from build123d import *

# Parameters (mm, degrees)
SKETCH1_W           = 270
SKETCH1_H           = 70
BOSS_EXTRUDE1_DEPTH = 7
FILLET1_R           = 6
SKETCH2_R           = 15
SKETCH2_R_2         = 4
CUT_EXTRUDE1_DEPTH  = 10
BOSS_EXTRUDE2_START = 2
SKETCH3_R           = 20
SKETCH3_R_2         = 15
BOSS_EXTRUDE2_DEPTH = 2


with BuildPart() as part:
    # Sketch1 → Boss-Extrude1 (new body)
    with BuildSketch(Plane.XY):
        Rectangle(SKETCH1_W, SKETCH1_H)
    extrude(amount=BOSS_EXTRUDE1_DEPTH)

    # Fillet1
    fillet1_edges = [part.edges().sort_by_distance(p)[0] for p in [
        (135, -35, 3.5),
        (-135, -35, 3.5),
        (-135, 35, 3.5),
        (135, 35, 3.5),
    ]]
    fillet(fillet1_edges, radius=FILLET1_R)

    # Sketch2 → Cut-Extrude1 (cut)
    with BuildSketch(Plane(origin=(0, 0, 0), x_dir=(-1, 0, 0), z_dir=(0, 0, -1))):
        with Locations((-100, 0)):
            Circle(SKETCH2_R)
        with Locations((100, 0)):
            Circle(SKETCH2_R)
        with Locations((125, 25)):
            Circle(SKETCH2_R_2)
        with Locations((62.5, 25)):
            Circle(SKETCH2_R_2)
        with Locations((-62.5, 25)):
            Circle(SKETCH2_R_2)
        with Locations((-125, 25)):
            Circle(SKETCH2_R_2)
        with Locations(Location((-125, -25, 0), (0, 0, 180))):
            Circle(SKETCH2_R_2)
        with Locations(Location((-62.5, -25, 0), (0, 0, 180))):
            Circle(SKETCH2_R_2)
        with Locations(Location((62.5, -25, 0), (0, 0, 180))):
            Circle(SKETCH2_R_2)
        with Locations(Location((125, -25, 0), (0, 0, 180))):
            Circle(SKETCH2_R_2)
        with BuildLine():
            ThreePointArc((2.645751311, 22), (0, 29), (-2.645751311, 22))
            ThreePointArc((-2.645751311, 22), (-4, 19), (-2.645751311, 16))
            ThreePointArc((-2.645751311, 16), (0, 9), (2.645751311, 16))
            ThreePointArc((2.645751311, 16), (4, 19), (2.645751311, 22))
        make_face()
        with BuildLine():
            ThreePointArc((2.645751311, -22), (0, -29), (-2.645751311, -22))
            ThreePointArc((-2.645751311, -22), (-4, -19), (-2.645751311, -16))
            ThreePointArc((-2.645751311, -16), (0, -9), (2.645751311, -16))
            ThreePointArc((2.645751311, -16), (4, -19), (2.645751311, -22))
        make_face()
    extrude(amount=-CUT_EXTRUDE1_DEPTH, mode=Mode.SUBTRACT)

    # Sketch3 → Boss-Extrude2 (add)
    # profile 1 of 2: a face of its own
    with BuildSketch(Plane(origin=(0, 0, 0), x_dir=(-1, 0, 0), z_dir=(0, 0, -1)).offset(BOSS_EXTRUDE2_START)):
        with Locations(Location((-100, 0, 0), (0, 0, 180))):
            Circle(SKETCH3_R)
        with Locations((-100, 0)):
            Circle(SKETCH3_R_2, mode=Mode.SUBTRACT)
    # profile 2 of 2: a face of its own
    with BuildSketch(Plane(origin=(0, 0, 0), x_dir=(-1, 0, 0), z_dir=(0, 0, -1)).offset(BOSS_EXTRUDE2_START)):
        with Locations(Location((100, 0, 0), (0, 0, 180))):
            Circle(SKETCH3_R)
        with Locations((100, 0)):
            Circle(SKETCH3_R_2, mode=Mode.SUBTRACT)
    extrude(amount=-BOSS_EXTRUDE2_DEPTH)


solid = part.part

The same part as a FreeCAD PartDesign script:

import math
import FreeCAD as App
import Part
import Sketcher

V = App.Vector
Q = App.Units.Quantity


def edges_at(feature, points):
    """Names of the edges that pass closest to the given points."""
    edges = feature.Shape.Edges
    near = lambda p: min(range(len(edges)), key=lambda i: edges[i].distToShape(Part.Vertex(*p))[0])
    return sorted({f"Edge{near(p) + 1}" for p in points})


def add_polygon(sketch, points):
    """Adds a closed chain of lines whose ends are joined by coincident constraints."""
    first, n = sketch.GeometryCount, len(points)
    for a, b in zip(points, points[1:] + points[:1]):
        sketch.addGeometry(Part.LineSegment(App.Vector(*a, 0), App.Vector(*b, 0)), False)
    for i in range(n):
        sketch.addConstraint(Sketcher.Constraint("Coincident", first + i, 2, first + (i + 1) % n, 1))

doc = App.newDocument("Part")
params = doc.addObject("Spreadsheet::Sheet", "Params")
for row, (alias, value) in enumerate([
    ("sketch1_width", "270 mm"),
    ("sketch1_height", "70 mm"),
    ("pad1_length", "7 mm"),
    ("fillet_radius", "6 mm"),
    ("sketch2_diameter", "30 mm"),
    ("sketch2_diameter2", "8 mm"),
    ("pocket1_length", "10 mm"),
    ("sketch3_diameter", "40 mm"),
    ("sketch3_diameter2", "30 mm"),
    ("pad2_length", "2 mm"),
], start=1):
    params.set(f"A{row}", alias)
    params.set(f"B{row}", "=" + value)
    params.setAlias(f"B{row}", alias)

body = doc.addObject("PartDesign::Body", "Body")

# Sketch on XY plane
sketch1 = body.newObject("Sketcher::SketchObject", "Sketch")
sketch1.AttachmentSupport = (doc.getObject("XY_Plane"), [""])
sketch1.MapMode = "FlatFace"
add_polygon(sketch1, [(-135, 35), (-135, -35), (135, -35), (135, 35)])  # lines 0-3
sketch1.addConstraint([
    Sketcher.Constraint("Vertical", 0),
    Sketcher.Constraint("Horizontal", 1),
    Sketcher.Constraint("Vertical", 2),
    Sketcher.Constraint("Horizontal", 3),
    Sketcher.Constraint("Symmetric", 0, 2, 2, 2, -1, 1),
    Sketcher.Constraint("DistanceX", 1, 1, 1, 2, Q("270 mm")),
    Sketcher.Constraint("DistanceY", 0, 2, 0, 1, Q("70 mm")),
])
sketch1.setExpression("Constraints[9]", "Params.sketch1_width")
sketch1.setExpression("Constraints[10]", "Params.sketch1_height")
pad1 = body.newObject("PartDesign::Pad", "Pad")
pad1.Profile = sketch1
pad1.setExpression("Length", "Params.pad1_length")
doc.recompute()

fillet = body.newObject("PartDesign::Fillet", "Fillet")
fillet.Base = (pad1, edges_at(pad1, [
    (135, -35, 3.5),
    (-135, -35, 3.5),
    (-135, 35, 3.5),
    (135, 35, 3.5),
]))
fillet.setExpression("Radius", "Params.fillet_radius")

# Sketch on XY plane
sketch2 = body.newObject("Sketcher::SketchObject", "Sketch001")
sketch2.AttachmentSupport = (doc.getObject("XY_Plane"), [""])
sketch2.MapMode = "FlatFace"
sketch2.addGeometry([
    Part.Circle(V(100, 0, 0), V(0, 0, 1), 15),  # 0
    Part.Circle(V(-100, 0, 0), V(0, 0, 1), 15),  # 1
    Part.Circle(V(-125, 25, 0), V(0, 0, 1), 4),  # 2
    Part.Circle(V(-62.5, 25, 0), V(0, 0, 1), 4),  # 3
    Part.Circle(V(62.5, 25, 0), V(0, 0, 1), 4),  # 4
    Part.Circle(V(125, 25, 0), V(0, 0, 1), 4),  # 5
    Part.Circle(V(125, -25, 0), V(0, 0, 1), 4),  # 6
    Part.Circle(V(62.5, -25, 0), V(0, 0, 1), 4),  # 7
    Part.Circle(V(-62.5, -25, 0), V(0, 0, 1), 4),  # 8
    Part.Circle(V(-125, -25, 0), V(0, 0, 1), 4),  # 9
    Part.ArcOfCircle(Part.Circle(V(0, 25, 0), V(0, 0, 1), 4), math.radians(-48.590378), math.radians(228.590378)),  # 10
    Part.ArcOfCircle(Part.Circle(V(0, 19, 0), V(0, 0, 1), 4), math.radians(-48.590378), math.radians(48.590378)),  # 11
    Part.ArcOfCircle(Part.Circle(V(0, 13, 0), V(0, 0, 1), 4), math.radians(131.409622), math.radians(408.590378)),  # 12
    Part.ArcOfCircle(Part.Circle(V(0, 19, 0), V(0, 0, 1), 4), math.radians(131.409622), math.radians(228.590378)),  # 13
    Part.ArcOfCircle(Part.Circle(V(0, -25, 0), V(0, 0, 1), 4), math.radians(131.409622), math.radians(408.590378)),  # 14
    Part.ArcOfCircle(Part.Circle(V(0, -19, 0), V(0, 0, 1), 4), math.radians(131.409622), math.radians(228.590378)),  # 15
    Part.ArcOfCircle(Part.Circle(V(0, -13, 0), V(0, 0, 1), 4), math.radians(-48.590378), math.radians(228.590378)),  # 16
    Part.ArcOfCircle(Part.Circle(V(0, -19, 0), V(0, 0, 1), 4), math.radians(-48.590378), math.radians(48.590378)),  # 17
], False)
sketch2.addConstraint([
    Sketcher.Constraint("Coincident", 10, 1, 11, 2),
    Sketcher.Constraint("Coincident", 11, 1, 12, 2),
    Sketcher.Constraint("Coincident", 12, 1, 13, 2),
    Sketcher.Constraint("Coincident", 13, 1, 10, 2),
    Sketcher.Constraint("Coincident", 14, 1, 15, 2),
    Sketcher.Constraint("Coincident", 15, 1, 16, 2),
    Sketcher.Constraint("Coincident", 16, 1, 17, 2),
    Sketcher.Constraint("Coincident", 17, 1, 14, 2),
    Sketcher.Constraint("Coincident", 13, 3, 11, 3),
    Sketcher.Constraint("Coincident", 17, 3, 15, 3),
    Sketcher.Constraint("Equal", 0, 1),
    Sketcher.Constraint("Equal", 2, 3),
    Sketcher.Constraint("Equal", 3, 4),
    Sketcher.Constraint("Equal", 4, 5),
    Sketcher.Constraint("Equal", 5, 6),
    Sketcher.Constraint("Equal", 6, 7),
    Sketcher.Constraint("Equal", 7, 8),
    Sketcher.Constraint("Equal", 8, 9),
    Sketcher.Constraint("Equal", 9, 10),
    Sketcher.Constraint("Equal", 10, 11),
    Sketcher.Constraint("Equal", 11, 12),
    Sketcher.Constraint("Equal", 12, 13),
    Sketcher.Constraint("Equal", 13, 14),
    Sketcher.Constraint("Equal", 14, 15),
    Sketcher.Constraint("Equal", 15, 16),
    Sketcher.Constraint("Equal", 16, 17),
    Sketcher.Constraint("Symmetric", 0, 3, 1, 3, -1, 1),
    Sketcher.Constraint("Symmetric", 2, 3, 6, 3, -1, 1),
    Sketcher.Constraint("Symmetric", 3, 3, 7, 3, -1, 1),
    Sketcher.Constraint("Symmetric", 4, 3, 8, 3, -1, 1),
    Sketcher.Constraint("Symmetric", 5, 3, 9, 3, -1, 1),
    Sketcher.Constraint("Symmetric", 10, 3, 14, 3, -1, 1),
    Sketcher.Constraint("Symmetric", 11, 3, 15, 3, -1, 1),
    Sketcher.Constraint("Symmetric", 12, 3, 16, 3, -1, 1),
    Sketcher.Constraint("Symmetric", 3, 3, 4, 3, -2),
    Sketcher.Constraint("Symmetric", 2, 3, 5, 3, -2),
    Sketcher.Constraint("Symmetric", 11, 1, 12, 1, -2),
    Sketcher.Constraint("PointOnObject", 0, 3, -1),
    Sketcher.Constraint("PointOnObject", 10, 3, -2),
    Sketcher.Constraint("Horizontal", 2, 3, 3, 3),
    Sketcher.Constraint("Horizontal", 5, 3, 10, 3),
    Sketcher.Constraint("Vertical", 10, 1, 11, 1),
    Sketcher.Constraint("Diameter", 0, Q("30 mm")),
    Sketcher.Constraint("Diameter", 2, Q("8 mm")),
    Sketcher.Constraint("DistanceX", -1, 1, 0, 3, Q("100 mm")),
    Sketcher.Constraint("DistanceX", 2, 3, -1, 1, Q("125 mm")),
    Sketcher.Constraint("DistanceY", -1, 1, 2, 3, Q("25 mm")),
    Sketcher.Constraint("DistanceY", -1, 1, 11, 3, Q("19 mm")),
    Sketcher.Constraint("DistanceX", 3, 3, 4, 3, Q("125 mm")),
])
sketch2.setExpression("Constraints[42]", "Params.sketch2_diameter")
sketch2.setExpression("Constraints[43]", "Params.sketch2_diameter2")
pocket1 = body.newObject("PartDesign::Pocket", "Pocket")
pocket1.Profile = sketch2
pocket1.setExpression("Length", "Params.pocket1_length")
pocket1.Reversed = True

# Sketch on XY plane
sketch3 = body.newObject("Sketcher::SketchObject", "Sketch002")
sketch3.AttachmentSupport = (doc.getObject("XY_Plane"), [""])
sketch3.MapMode = "FlatFace"
sketch3.AttachmentOffset = App.Placement(V(0, 0, -2), App.Rotation())
sketch3.addGeometry([
    Part.Circle(V(100, 0, 0), V(0, 0, 1), 20),
    Part.Circle(V(100, 0, 0), V(0, 0, 1), 15),
    Part.Circle(V(-100, 0, 0), V(0, 0, 1), 20),
    Part.Circle(V(-100, 0, 0), V(0, 0, 1), 15),
], False)
sketch3.addConstraint([
    Sketcher.Constraint("Coincident", 1, 3, 0, 3),
    Sketcher.Constraint("Coincident", 3, 3, 2, 3),
    Sketcher.Constraint("Equal", 0, 2),
    Sketcher.Constraint("Equal", 1, 3),
    Sketcher.Constraint("Symmetric", 0, 3, 2, 3, -1, 1),
    Sketcher.Constraint("PointOnObject", 0, 3, -1),
    Sketcher.Constraint("Diameter", 0, Q("40 mm")),
    Sketcher.Constraint("Diameter", 1, Q("30 mm")),
    Sketcher.Constraint("DistanceX", -1, 1, 0, 3, Q("100 mm")),
])
sketch3.setExpression("Constraints[6]", "Params.sketch3_diameter")
sketch3.setExpression("Constraints[7]", "Params.sketch3_diameter2")
pad2 = body.newObject("PartDesign::Pad", "Pad001")
pad2.Profile = sketch3
pad2.setExpression("Length", "Params.pad2_length")

doc.recompute()
